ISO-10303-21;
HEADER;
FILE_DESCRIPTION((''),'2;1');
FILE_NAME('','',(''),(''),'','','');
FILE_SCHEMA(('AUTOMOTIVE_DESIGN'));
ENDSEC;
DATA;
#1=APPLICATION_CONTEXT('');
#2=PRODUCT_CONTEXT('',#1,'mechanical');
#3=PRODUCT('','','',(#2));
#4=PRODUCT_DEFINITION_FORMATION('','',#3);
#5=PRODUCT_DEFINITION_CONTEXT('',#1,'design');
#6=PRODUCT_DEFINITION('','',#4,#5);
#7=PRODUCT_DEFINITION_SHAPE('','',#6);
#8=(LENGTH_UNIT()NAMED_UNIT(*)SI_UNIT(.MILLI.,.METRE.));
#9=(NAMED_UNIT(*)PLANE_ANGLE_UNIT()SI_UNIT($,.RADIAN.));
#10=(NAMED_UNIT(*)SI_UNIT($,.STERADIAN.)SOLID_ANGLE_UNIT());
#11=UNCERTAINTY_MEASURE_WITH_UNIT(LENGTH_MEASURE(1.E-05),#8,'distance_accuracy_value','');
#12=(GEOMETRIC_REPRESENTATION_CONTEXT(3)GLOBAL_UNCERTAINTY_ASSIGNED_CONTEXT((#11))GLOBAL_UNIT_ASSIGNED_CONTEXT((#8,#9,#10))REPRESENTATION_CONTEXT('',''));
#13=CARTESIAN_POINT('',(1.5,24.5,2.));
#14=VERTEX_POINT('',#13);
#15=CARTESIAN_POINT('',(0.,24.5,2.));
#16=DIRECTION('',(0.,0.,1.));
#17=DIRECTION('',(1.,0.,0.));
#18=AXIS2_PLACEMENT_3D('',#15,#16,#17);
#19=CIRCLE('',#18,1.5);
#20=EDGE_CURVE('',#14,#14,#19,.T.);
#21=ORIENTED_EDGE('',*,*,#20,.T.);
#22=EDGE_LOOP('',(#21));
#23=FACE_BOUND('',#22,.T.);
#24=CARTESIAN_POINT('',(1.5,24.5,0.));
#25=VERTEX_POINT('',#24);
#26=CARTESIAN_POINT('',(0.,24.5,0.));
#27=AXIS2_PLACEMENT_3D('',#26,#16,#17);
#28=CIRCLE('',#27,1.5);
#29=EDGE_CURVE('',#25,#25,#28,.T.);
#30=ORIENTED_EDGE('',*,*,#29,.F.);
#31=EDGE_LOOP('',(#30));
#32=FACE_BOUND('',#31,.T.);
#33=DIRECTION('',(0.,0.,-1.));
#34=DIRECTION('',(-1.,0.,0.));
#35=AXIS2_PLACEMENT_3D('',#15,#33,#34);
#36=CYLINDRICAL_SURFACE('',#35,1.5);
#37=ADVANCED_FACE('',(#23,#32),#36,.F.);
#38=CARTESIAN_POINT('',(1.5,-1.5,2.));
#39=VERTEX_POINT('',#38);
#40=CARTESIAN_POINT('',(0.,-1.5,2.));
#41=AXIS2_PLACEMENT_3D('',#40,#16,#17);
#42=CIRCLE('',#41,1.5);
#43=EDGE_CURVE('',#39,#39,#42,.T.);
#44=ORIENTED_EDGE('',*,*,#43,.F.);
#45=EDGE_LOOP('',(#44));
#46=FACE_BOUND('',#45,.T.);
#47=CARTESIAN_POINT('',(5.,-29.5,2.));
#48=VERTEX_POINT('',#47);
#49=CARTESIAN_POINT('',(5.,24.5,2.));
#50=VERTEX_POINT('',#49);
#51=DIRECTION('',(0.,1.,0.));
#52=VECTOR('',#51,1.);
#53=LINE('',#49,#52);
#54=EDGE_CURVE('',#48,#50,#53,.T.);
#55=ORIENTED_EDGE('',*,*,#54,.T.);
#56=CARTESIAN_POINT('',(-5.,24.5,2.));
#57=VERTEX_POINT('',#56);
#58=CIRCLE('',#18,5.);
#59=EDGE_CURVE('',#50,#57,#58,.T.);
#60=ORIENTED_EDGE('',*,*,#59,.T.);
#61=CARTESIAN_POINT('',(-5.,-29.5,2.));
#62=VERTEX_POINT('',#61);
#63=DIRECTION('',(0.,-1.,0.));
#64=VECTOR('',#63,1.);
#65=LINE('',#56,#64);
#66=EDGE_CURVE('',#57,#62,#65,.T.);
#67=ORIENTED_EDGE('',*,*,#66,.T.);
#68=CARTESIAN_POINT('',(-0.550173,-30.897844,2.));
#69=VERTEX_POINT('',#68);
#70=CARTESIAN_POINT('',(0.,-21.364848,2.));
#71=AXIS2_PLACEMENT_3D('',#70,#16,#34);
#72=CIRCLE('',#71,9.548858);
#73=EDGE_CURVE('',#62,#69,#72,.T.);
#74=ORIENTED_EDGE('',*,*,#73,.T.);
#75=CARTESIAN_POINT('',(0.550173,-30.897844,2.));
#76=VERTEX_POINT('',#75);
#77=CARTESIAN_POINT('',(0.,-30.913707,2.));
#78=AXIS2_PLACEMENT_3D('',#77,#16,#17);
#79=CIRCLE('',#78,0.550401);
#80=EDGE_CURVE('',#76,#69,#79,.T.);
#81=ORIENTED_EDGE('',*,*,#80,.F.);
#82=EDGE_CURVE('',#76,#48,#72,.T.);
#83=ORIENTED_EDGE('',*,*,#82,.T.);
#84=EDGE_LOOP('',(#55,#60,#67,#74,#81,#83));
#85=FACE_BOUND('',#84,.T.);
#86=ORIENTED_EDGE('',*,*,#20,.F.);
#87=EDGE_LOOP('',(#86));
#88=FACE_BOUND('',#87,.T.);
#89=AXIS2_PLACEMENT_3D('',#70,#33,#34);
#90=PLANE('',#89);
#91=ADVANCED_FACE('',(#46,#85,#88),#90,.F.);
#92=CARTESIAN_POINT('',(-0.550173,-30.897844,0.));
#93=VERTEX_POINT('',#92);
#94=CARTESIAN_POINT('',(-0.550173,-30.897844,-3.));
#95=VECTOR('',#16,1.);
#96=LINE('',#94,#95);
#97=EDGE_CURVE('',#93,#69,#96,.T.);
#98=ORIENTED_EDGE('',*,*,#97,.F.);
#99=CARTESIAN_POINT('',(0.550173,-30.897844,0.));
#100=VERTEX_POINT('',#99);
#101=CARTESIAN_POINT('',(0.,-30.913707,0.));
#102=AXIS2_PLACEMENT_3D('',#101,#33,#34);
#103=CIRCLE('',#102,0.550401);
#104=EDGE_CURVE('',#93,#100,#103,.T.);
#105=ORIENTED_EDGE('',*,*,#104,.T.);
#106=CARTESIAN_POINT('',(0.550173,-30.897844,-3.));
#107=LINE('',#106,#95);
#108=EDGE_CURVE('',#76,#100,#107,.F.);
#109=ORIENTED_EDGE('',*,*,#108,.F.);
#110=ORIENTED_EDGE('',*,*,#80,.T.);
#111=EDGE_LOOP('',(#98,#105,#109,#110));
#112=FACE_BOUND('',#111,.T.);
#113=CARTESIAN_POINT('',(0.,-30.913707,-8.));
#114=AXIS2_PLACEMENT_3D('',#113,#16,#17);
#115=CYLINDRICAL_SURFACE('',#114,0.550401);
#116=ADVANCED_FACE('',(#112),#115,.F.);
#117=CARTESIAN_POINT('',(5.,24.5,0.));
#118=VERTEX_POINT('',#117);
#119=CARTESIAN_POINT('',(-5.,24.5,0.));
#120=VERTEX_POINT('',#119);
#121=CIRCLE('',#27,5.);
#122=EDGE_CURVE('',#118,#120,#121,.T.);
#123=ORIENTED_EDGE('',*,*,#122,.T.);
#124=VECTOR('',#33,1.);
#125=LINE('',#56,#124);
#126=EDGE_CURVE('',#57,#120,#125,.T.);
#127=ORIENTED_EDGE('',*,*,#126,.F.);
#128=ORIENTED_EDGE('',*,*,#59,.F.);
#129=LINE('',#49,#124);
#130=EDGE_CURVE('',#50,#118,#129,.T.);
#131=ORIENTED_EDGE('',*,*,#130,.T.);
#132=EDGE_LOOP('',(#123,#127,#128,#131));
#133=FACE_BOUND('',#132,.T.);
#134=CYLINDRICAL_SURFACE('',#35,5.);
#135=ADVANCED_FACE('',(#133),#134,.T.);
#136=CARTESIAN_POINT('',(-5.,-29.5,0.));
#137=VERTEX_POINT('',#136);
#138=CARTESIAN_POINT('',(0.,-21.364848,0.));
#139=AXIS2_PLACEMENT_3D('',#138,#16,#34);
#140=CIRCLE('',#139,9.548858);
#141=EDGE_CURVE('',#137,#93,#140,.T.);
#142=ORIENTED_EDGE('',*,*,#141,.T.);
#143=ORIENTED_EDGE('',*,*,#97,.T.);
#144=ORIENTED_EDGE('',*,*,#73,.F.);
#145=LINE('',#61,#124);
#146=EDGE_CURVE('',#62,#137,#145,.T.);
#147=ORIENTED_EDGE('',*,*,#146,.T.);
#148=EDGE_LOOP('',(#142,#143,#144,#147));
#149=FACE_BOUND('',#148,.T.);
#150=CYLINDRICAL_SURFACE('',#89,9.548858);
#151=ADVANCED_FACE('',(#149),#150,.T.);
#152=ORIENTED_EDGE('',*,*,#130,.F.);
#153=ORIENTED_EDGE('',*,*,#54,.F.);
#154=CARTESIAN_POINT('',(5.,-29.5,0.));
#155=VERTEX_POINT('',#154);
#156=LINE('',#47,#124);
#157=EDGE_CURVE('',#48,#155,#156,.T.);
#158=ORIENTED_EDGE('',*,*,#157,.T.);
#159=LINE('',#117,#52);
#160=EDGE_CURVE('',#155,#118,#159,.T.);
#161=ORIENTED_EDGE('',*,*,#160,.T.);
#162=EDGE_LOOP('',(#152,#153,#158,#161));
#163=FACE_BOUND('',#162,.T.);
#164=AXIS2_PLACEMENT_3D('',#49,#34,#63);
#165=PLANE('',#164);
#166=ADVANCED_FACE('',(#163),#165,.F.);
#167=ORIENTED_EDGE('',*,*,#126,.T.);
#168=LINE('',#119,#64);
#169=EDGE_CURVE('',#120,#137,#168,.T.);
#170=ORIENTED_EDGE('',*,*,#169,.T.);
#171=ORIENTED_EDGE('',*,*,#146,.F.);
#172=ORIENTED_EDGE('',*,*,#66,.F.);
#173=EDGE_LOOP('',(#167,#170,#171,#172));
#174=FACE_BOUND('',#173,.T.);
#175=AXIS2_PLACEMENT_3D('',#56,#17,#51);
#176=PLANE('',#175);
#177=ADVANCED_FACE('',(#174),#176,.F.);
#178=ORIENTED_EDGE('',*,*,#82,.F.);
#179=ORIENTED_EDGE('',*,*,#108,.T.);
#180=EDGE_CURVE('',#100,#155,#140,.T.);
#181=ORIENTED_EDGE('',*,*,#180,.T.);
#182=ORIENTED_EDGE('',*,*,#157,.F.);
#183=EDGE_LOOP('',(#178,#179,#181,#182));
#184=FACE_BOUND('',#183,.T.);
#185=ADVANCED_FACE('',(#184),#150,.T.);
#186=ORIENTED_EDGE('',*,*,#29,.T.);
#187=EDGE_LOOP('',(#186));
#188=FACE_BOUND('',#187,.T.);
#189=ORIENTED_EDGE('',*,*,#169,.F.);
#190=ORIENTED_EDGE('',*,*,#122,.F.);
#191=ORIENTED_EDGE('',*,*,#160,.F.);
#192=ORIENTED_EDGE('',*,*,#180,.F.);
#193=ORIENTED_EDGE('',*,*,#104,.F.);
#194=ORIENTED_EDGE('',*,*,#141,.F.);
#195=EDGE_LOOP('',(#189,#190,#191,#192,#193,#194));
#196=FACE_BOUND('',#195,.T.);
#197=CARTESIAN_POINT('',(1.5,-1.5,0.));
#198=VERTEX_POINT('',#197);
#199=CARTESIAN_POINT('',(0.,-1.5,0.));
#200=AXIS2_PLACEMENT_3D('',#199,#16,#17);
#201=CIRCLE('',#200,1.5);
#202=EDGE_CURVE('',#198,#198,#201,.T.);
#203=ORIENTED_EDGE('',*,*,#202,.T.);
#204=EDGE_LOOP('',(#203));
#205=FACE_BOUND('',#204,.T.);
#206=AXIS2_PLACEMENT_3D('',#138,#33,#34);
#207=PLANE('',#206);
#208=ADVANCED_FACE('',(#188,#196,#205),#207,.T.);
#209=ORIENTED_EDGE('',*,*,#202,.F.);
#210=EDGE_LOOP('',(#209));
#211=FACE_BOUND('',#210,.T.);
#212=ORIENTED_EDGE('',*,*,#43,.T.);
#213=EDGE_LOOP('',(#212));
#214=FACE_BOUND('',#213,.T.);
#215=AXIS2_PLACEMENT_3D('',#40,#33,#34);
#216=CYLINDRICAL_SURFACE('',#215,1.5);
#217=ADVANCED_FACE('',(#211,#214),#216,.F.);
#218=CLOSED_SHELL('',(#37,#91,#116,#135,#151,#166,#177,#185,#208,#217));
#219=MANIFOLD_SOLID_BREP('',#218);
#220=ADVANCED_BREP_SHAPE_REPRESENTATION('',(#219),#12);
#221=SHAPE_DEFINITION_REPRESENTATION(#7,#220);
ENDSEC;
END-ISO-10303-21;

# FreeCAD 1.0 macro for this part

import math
import FreeCAD as App
import Part
import Sketcher
from FreeCAD import Vector

doc = App.newDocument("Part")
body = doc.addObject("PartDesign::Body", "Body")

# Sketch on XY plane
sketch1 = body.newObject("Sketcher::SketchObject", "Sketch")
sketch1.AttachmentSupport = (doc.getObject("XY_Plane"), [""])
sketch1.MapMode = "FlatFace"
sketch1.addGeometry([
    Part.LineSegment(Vector(-5, 24.5, 0), Vector(-5, -29.5, 0)),  # 0
    Part.ArcOfCircle(Part.Circle(Vector(0, -21.4, 0), Vector(0, 0, 1), 9.5), math.radians(-122), math.radians(-58)),  # 1
    Part.LineSegment(Vector(5, -29.5, 0), Vector(5, 24.5, 0)),  # 2
    Part.ArcOfCircle(Part.Circle(Vector(0, 24.5, 0), Vector(0, 0, 1), 5), math.radians(0), math.radians(180)),  # 3
    Part.Circle(Vector(0, -1.5, 0), Vector(0, 0, 1), 1.5),  # 4
    Part.Circle(Vector(0, 24.5, 0), Vector(0, 0, 1), 1.5),  # 5
], False)
sketch1.addConstraint([
    Sketcher.Constraint("Coincident", 0, 2, 1, 1),
    Sketcher.Constraint("Coincident", 1, 2, 2, 1),
    Sketcher.Constraint("Tangent", 2, 2, 3, 1),
    Sketcher.Constraint("Tangent", 3, 2, 0, 1),
    Sketcher.Constraint("Vertical", 0),
    Sketcher.Constraint("Vertical", 2),
    Sketcher.Constraint("Coincident", 5, 3, 3, 3),
    Sketcher.Constraint("Equal", 4, 5),
    Sketcher.Constraint("Symmetric", 0, 2, 1, 2, -2),
    Sketcher.Constraint("PointOnObject", 4, 3, -2),
    Sketcher.Constraint("Diameter", 4, 3.0),
    Sketcher.Constraint("Radius", 3, 5.0),
    Sketcher.Constraint("DistanceY", 0, 2, 0, 1, 54.0),
    Sketcher.Constraint("DistanceY", 4, 3, 3, 3, 26.0),
    Sketcher.Constraint("DistanceY", -1, 1, 3, 3, 24.5),
    Sketcher.Constraint("Radius", 1, 9.548858),
])
pad1 = body.newObject("PartDesign::Pad", "Pad")
pad1.Profile = sketch1
pad1.Length = 2

# Sketch on XY plane
sketch2 = body.newObject("Sketcher::SketchObject", "Sketch001")
sketch2.AttachmentSupport = (doc.getObject("XY_Plane"), [""])
sketch2.MapMode = "FlatFace"
sketch2.AttachmentOffset = App.Placement(Vector(0, 0, 2), App.Rotation())
sketch2.addGeometry(Part.Circle(Vector(0, -30.9, 0), Vector(0, 0, 1), 0.6), False)
sketch2.addConstraint([
    Sketcher.Constraint("PointOnObject", 0, 3, -2),
    Sketcher.Constraint("Diameter", 0, 1.100802),
    Sketcher.Constraint("DistanceY", 0, 3, -1, 1, 30.913707),
])
pocket1 = body.newObject("PartDesign::Pocket", "Pocket")
pocket1.Profile = sketch2
pocket1.Length = 10

doc.recompute()
